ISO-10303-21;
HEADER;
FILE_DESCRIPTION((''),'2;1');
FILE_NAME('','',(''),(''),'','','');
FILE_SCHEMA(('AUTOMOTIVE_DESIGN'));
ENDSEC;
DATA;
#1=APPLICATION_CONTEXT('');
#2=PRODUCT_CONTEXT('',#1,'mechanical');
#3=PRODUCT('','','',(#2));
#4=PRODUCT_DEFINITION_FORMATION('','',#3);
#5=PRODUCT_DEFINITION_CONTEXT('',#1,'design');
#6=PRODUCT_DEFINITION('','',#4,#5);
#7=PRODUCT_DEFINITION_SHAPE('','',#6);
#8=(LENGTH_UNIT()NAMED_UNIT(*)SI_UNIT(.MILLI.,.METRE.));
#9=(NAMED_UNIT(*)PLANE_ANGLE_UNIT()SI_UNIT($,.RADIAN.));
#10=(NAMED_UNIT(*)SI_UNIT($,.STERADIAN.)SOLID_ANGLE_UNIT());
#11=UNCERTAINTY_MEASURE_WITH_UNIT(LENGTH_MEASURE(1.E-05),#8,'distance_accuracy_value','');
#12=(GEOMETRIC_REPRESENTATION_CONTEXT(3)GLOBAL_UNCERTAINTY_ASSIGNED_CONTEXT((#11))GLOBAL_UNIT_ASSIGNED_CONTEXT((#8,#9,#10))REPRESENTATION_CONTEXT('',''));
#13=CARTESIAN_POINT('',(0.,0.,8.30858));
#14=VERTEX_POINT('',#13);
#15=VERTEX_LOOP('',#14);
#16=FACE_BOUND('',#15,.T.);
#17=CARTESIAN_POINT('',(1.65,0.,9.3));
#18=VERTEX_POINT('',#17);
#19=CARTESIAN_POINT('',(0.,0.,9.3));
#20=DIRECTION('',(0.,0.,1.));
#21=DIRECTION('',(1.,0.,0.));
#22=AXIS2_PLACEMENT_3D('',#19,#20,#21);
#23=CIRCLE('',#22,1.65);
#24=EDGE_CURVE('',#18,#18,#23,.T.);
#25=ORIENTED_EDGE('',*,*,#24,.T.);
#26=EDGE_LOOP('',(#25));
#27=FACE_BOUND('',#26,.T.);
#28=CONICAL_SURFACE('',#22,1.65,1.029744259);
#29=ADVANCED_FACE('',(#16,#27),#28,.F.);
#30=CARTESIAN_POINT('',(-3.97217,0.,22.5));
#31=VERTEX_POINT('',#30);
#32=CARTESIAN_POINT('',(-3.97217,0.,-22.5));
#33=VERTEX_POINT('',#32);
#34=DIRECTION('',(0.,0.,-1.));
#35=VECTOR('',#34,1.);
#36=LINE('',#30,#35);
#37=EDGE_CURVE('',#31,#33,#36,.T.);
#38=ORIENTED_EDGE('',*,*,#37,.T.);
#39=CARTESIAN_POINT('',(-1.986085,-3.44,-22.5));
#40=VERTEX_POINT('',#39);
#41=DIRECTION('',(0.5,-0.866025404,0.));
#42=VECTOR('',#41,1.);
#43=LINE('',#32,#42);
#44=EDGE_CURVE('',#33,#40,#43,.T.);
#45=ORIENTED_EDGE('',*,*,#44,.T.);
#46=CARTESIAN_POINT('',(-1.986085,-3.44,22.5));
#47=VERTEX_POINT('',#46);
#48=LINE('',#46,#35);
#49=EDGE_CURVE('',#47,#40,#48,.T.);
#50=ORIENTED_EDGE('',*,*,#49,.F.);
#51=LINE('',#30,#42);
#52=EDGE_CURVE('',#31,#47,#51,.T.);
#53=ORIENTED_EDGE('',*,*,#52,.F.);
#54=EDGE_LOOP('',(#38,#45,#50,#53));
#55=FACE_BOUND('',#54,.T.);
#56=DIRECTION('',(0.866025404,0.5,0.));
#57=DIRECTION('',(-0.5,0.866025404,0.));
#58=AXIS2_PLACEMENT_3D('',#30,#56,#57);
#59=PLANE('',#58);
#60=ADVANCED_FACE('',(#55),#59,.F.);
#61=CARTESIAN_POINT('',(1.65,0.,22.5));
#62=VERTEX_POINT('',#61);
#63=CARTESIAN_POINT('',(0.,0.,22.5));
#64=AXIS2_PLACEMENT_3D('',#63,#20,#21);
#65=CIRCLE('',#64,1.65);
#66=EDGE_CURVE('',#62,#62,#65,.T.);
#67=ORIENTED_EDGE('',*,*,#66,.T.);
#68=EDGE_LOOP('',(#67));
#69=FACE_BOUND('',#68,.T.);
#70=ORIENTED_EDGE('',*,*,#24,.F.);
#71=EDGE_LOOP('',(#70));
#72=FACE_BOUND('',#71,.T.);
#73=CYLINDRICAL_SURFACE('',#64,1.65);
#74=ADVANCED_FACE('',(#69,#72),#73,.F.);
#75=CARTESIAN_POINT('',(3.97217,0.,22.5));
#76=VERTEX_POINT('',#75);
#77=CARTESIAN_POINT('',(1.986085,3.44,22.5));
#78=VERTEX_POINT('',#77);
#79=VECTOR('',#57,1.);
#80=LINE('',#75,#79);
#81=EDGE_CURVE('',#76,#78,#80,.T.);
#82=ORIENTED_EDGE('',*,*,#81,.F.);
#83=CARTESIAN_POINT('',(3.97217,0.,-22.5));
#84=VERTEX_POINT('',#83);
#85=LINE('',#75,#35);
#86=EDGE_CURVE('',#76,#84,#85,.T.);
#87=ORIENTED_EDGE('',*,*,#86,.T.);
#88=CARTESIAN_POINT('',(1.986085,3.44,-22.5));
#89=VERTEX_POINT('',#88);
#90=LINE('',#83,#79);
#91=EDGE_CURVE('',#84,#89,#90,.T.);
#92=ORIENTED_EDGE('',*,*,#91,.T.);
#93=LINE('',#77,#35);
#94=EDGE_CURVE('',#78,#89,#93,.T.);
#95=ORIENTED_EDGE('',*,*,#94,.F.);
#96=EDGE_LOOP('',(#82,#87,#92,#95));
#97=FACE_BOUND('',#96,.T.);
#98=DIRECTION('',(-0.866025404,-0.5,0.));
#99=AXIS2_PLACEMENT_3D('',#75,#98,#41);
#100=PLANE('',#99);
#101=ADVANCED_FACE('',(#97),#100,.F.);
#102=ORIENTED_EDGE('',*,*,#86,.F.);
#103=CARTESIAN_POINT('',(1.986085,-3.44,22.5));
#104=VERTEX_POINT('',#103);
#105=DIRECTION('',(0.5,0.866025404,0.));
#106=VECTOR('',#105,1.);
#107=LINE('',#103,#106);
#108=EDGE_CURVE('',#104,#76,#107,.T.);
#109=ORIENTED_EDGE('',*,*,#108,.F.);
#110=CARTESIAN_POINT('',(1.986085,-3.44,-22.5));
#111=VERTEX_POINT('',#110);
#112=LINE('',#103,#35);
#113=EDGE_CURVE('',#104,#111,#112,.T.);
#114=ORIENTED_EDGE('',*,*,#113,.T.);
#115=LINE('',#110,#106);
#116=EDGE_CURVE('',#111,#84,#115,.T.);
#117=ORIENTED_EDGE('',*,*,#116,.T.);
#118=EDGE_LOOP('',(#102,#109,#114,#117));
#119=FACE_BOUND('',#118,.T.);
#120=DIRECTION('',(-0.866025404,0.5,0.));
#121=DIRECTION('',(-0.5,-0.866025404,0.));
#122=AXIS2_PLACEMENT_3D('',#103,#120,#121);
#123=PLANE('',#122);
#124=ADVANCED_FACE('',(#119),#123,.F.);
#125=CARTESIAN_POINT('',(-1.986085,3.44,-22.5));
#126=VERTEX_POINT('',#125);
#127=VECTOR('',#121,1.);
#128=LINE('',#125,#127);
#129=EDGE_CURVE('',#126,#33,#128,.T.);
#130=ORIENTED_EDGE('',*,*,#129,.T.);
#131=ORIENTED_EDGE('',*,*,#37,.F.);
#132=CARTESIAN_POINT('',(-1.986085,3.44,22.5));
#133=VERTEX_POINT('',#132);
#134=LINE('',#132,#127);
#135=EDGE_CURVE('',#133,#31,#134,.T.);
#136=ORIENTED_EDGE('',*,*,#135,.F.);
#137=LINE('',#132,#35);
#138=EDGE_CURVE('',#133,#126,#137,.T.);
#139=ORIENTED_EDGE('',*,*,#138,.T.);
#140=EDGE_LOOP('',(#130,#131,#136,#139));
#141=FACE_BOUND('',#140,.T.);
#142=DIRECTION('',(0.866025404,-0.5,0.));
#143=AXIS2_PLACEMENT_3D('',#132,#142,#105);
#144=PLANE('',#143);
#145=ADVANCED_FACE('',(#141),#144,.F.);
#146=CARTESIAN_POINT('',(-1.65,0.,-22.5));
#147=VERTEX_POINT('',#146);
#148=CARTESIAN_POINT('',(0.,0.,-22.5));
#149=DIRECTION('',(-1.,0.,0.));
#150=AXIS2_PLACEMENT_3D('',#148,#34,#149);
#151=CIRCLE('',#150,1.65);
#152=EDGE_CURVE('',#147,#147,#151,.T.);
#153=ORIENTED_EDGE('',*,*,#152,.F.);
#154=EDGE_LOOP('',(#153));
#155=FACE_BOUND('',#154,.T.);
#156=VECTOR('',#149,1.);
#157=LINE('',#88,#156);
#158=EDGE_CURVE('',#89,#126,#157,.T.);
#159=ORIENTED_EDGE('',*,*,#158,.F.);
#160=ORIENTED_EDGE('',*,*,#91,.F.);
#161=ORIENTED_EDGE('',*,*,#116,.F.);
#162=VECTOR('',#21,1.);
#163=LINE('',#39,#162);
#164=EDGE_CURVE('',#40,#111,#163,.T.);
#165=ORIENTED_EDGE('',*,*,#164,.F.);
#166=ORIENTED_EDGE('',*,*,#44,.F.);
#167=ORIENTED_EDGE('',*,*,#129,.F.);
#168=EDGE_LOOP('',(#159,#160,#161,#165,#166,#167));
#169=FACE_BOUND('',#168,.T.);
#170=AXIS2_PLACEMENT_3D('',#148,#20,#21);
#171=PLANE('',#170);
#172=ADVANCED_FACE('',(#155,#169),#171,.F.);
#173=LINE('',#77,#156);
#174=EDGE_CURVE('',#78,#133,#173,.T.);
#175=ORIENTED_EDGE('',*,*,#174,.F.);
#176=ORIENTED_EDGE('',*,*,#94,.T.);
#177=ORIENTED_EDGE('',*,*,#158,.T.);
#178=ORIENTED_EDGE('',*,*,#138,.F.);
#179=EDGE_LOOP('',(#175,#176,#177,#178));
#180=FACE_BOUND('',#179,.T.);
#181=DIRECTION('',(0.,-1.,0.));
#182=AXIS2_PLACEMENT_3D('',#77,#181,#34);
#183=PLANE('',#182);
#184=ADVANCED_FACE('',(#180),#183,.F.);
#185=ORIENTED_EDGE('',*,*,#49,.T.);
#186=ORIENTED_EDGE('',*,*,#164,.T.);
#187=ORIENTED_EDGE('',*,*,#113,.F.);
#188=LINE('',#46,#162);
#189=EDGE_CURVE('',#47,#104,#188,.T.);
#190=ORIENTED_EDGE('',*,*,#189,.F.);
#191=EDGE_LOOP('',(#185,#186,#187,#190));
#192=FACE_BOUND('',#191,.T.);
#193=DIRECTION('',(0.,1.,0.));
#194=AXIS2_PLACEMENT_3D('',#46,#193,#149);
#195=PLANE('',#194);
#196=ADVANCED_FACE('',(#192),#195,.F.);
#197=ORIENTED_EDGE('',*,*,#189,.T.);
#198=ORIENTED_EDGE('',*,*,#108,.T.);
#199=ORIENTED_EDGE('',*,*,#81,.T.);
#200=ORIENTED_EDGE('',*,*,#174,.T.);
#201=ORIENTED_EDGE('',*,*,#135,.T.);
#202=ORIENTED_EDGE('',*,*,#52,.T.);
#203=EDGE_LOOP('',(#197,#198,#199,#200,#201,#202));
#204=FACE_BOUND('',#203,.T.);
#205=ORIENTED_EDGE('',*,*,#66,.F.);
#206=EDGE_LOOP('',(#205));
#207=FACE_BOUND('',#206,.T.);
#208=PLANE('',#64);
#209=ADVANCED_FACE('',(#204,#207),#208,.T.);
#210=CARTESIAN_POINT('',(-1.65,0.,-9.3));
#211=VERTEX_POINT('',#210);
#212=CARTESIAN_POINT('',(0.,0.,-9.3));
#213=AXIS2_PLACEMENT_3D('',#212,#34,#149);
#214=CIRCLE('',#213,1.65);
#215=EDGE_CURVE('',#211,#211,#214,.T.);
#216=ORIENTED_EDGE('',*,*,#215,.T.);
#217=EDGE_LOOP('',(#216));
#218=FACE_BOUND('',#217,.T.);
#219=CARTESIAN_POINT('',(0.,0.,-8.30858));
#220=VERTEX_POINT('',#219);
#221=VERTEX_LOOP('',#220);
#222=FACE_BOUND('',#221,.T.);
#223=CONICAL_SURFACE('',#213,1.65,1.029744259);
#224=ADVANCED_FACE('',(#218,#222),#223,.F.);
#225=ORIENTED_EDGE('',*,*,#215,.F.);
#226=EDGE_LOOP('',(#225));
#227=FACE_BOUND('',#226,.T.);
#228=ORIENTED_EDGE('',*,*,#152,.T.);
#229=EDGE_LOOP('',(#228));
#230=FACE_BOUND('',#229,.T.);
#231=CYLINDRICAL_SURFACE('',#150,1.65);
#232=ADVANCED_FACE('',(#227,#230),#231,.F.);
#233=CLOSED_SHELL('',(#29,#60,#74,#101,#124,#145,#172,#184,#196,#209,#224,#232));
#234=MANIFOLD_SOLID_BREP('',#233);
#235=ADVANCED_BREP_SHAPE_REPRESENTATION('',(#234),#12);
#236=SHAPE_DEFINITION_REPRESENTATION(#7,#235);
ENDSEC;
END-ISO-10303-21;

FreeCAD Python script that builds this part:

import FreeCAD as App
import Part
import Sketcher
from FreeCAD import Vector
Q = App.Units.Quantity

doc = App.newDocument("Part")
body = doc.addObject("PartDesign::Body", "Body")

sketch1 = body.newObject("Sketcher::SketchObject", "Sketch")
sketch1.AttachmentSupport = (doc.getObject("XY_Plane"), [""])
sketch1.MapMode = "FlatFace"
sketch1.addGeometry(Part.LineSegment(Vector(2, 3.4, 0), Vector(-2, 3.4, 0)), False)
sketch1.addGeometry(Part.LineSegment(Vector(-2, 3.4, 0), Vector(-4, 0, 0)), False)
sketch1.addGeometry(Part.LineSegment(Vector(-4, 0, 0), Vector(-2, -3.4, 0)), False)
sketch1.addGeometry(Part.LineSegment(Vector(-2, -3.4, 0), Vector(2, -3.4, 0)), False)
sketch1.addGeometry(Part.LineSegment(Vector(2, -3.4, 0), Vector(4, 0, 0)), False)
sketch1.addGeometry(Part.LineSegment(Vector(4, 0, 0), Vector(2, 3.4, 0)), False)
sketch1.addConstraint(Sketcher.Constraint("Coincident", 0, 2, 1, 1))
sketch1.addConstraint(Sketcher.Constraint("Coincident", 1, 2, 2, 1))
sketch1.addConstraint(Sketcher.Constraint("Coincident", 2, 2, 3, 1))
sketch1.addConstraint(Sketcher.Constraint("Coincident", 3, 2, 4, 1))
sketch1.addConstraint(Sketcher.Constraint("Coincident", 4, 2, 5, 1))
sketch1.addConstraint(Sketcher.Constraint("Coincident", 5, 2, 0, 1))
sketch1.addConstraint(Sketcher.Constraint("Horizontal", 0))
sketch1.addConstraint(Sketcher.Constraint("Horizontal", 3))
sketch1.addConstraint(Sketcher.Constraint("Symmetric", 0, 2, 3, 2, -1, 1))
sketch1.addConstraint(Sketcher.Constraint("Symmetric", 1, 2, 4, 2, -1, 1))
sketch1.addConstraint(Sketcher.Constraint("PointOnObject", 1, 2, -1))
sketch1.addConstraint(Sketcher.Constraint("Parallel", 2, 5))
sketch1.addConstraint(Sketcher.Constraint("Vertical", 0, 2, 2, 2))
sketch1.addConstraint(Sketcher.Constraint("Angle", 1, Q("-120 deg")))
sketch1.addConstraint(Sketcher.Constraint("DistanceY", -1, 1, 0, 2, Q("3.44 mm")))
sketch1.addConstraint(Sketcher.Constraint("DistanceX", 0, 2, 0, 1, Q("3.97217 mm")))
pad1 = body.newObject("PartDesign::Pad", "Pad")
pad1.Profile = sketch1
pad1.Length = 45
pad1.Midplane = True

sketch2 = body.newObject("Sketcher::SketchObject", "Sketch001")
sketch2.AttachmentSupport = (doc.getObject("YZ_Plane"), [""])
sketch2.MapMode = "FlatFace"
sketch2.addGeometry(Part.LineSegment(Vector(0, 8.3, 0), Vector(0, 22.5, 0)), False)
sketch2.addGeometry(Part.LineSegment(Vector(0, 22.5, 0), Vector(-1.6, 22.5, 0)), False)
sketch2.addGeometry(Part.LineSegment(Vector(-1.6, 22.5, 0), Vector(-1.6, 9.3, 0)), False)
sketch2.addGeometry(Part.LineSegment(Vector(-1.6, 9.3, 0), Vector(0, 8.3, 0)), False)
sketch2.addConstraint(Sketcher.Constraint("Coincident", 0, 2, 1, 1))
sketch2.addConstraint(Sketcher.Constraint("Coincident", 1, 2, 2, 1))
sketch2.addConstraint(Sketcher.Constraint("Coincident", 2, 2, 3, 1))
sketch2.addConstraint(Sketcher.Constraint("Coincident", 3, 2, 0, 1))
sketch2.addConstraint(Sketcher.Constraint("Vertical", 0))
sketch2.addConstraint(Sketcher.Constraint("Horizontal", 1))
sketch2.addConstraint(Sketcher.Constraint("Vertical", 2))
sketch2.addConstraint(Sketcher.Constraint("PointOnObject", 0, 2, -2))
sketch2.addConstraint(Sketcher.Constraint("Angle", 3, Q("-31 deg")))
sketch2.addConstraint(Sketcher.Constraint("DistanceY", 2, 2, 2, 1, Q("13.2 mm")))
sketch2.addConstraint(Sketcher.Constraint("DistanceX", 1, 2, 1, 1, Q("1.65 mm")))
sketch2.addConstraint(Sketcher.Constraint("DistanceY", -1, 1, 0, 2, Q("22.5 mm")))
groove = body.newObject("PartDesign::Groove", "Groove")
groove.Profile = sketch2
groove.ReferenceAxis = (sketch2, ["V_Axis"])
groove.Angle = 360
doc.recompute()

mirrored = body.newObject("PartDesign::Mirrored", "Mirrored")
mirrored.Originals = [groove]
mirrored.MirrorPlane = (doc.getObject("XY_Plane"), [""])
body.Tip = mirrored

doc.recompute()
